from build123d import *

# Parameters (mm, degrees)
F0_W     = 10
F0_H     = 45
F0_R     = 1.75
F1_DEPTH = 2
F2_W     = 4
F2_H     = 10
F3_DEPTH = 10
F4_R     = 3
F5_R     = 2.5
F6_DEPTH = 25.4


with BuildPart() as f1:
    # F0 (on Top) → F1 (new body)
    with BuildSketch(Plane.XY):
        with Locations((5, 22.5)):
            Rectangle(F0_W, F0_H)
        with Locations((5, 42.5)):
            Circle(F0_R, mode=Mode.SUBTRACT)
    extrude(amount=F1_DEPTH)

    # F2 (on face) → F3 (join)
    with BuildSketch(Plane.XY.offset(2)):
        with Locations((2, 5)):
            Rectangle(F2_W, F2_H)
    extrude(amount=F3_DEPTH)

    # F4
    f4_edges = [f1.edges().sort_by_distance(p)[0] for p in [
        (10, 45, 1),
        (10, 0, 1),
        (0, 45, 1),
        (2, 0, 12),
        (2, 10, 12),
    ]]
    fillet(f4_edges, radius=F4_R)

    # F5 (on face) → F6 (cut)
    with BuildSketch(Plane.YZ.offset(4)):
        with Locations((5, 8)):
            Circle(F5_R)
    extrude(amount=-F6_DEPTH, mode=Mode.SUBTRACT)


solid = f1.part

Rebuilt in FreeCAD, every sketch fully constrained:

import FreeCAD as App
import Part
import Sketcher


def edges_at(feature, points):
    """Names of the edges that pass closest to the given points."""
    edges = feature.Shape.Edges
    near = lambda p: min(range(len(edges)), key=lambda i: edges[i].distToShape(Part.Vertex(*p))[0])
    return sorted({f"Edge{near(p) + 1}" for p in points})


def add_polygon(sketch, points):
    """Adds a closed chain of lines whose ends are joined by coincident constraints."""
    first, n = sketch.GeometryCount, len(points)
    for a, b in zip(points, points[1:] + points[:1]):
        sketch.addGeometry(Part.LineSegment(App.Vector(*a, 0), App.Vector(*b, 0)), False)
    for i in range(n):
        sketch.addConstraint(Sketcher.Constraint("Coincident", first + i, 2, first + (i + 1) % n, 1))

doc = App.newDocument("Part")
body = doc.addObject("PartDesign::Body", "Body")

sketch1 = doc.addObject("Sketcher::SketchObject", "Sketch")
body.addObject(sketch1)
sketch1.AttachmentSupport = (doc.XY_Plane, [""])
sketch1.MapMode = "FlatFace"
add_polygon(sketch1, [(0, 45), (0, 0), (10, 0), (10, 45)])
sketch1.addGeometry(Part.Circle(App.Vector(5, 42.5, 0), App.Vector(0, 0, 1), 1.75), False)
sketch1.addConstraint(Sketcher.Constraint("Vertical", 0))
sketch1.addConstraint(Sketcher.Constraint("Horizontal", 1))
sketch1.addConstraint(Sketcher.Constraint("Vertical", 2))
sketch1.addConstraint(Sketcher.Constraint("Horizontal", 3))
sketch1.addConstraint(Sketcher.Constraint("Coincident", 0, 2, -1, 1))
sketch1.addConstraint(Sketcher.Constraint("Diameter", 4, 3.5))
sketch1.addConstraint(Sketcher.Constraint("DistanceX", 1, 1, 1, 2, 10.0))
sketch1.addConstraint(Sketcher.Constraint("DistanceY", 0, 2, 0, 1, 45.0))
sketch1.addConstraint(Sketcher.Constraint("DistanceX", -1, 1, 4, 3, 5.0))
sketch1.addConstraint(Sketcher.Constraint("DistanceY", -1, 1, 4, 3, 42.5))
pad1 = doc.addObject("PartDesign::Pad", "Pad")
body.addObject(pad1)
pad1.Profile = sketch1
pad1.Length = 2

sketch2 = doc.addObject("Sketcher::SketchObject", "Sketch001")
body.addObject(sketch2)
sketch2.AttachmentSupport = (doc.XY_Plane, [""])
sketch2.MapMode = "FlatFace"
sketch2.AttachmentOffset = App.Placement(App.Vector(0, 0, 2), App.Rotation())
add_polygon(sketch2, [(0, 10), (0, 0), (4, 0), (4, 10)])
sketch2.addConstraint(Sketcher.Constraint("Vertical", 0))
sketch2.addConstraint(Sketcher.Constraint("Horizontal", 1))
sketch2.addConstraint(Sketcher.Constraint("Vertical", 2))
sketch2.addConstraint(Sketcher.Constraint("Horizontal", 3))
sketch2.addConstraint(Sketcher.Constraint("Coincident", 0, 2, -1, 1))
sketch2.addConstraint(Sketcher.Constraint("DistanceX", 1, 1, 1, 2, 4.0))
sketch2.addConstraint(Sketcher.Constraint("DistanceY", 0, 2, 0, 1, 10.0))
pad2 = doc.addObject("PartDesign::Pad", "Pad001")
body.addObject(pad2)
pad2.Profile = sketch2
pad2.Length = 10
doc.recompute()

fillet = doc.addObject("PartDesign::Fillet", "Fillet")
body.addObject(fillet)
fillet.Base = (pad2, edges_at(pad2, [
    (10, 45, 1),
    (10, 0, 1),
    (0, 45, 1),
    (2, 0, 12),
    (2, 10, 12),
]))
fillet.Radius = 3

sketch3 = doc.addObject("Sketcher::SketchObject", "Sketch002")
body.addObject(sketch3)
sketch3.AttachmentSupport = (doc.YZ_Plane, [""])
sketch3.MapMode = "FlatFace"
sketch3.AttachmentOffset = App.Placement(App.Vector(0, 0, 4), App.Rotation())
sketch3.addGeometry(Part.Circle(App.Vector(5, 8, 0), App.Vector(0, 0, 1), 2.5), False)
sketch3.addConstraint(Sketcher.Constraint("Diameter", 0, 5.0))
sketch3.addConstraint(Sketcher.Constraint("DistanceX", -1, 1, 0, 3, 5.0))
sketch3.addConstraint(Sketcher.Constraint("DistanceY", -1, 1, 0, 3, 8.0))
pocket1 = doc.addObject("PartDesign::Pocket", "Pocket")
body.addObject(pocket1)
pocket1.Profile = sketch3
pocket1.Length = 25.4

doc.recompute()
